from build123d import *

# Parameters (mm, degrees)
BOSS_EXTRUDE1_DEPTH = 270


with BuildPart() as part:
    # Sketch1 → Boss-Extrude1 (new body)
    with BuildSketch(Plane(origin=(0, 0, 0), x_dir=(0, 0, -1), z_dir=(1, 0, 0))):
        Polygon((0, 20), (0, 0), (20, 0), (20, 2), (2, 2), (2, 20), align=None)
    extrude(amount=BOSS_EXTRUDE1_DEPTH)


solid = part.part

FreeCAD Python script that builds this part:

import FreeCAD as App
import Part
import Sketcher
Q = App.Units.Quantity


def add_polygon(sketch, points):
    """Adds a closed chain of lines whose ends are joined by coincident constraints."""
    first, n = sketch.GeometryCount, len(points)
    for a, b in zip(points, points[1:] + points[:1]):
        sketch.addGeometry(Part.LineSegment(App.Vector(*a, 0), App.Vector(*b, 0)), False)
    for i in range(n):
        sketch.addConstraint(Sketcher.Constraint("Coincident", first + i, 2, first + (i + 1) % n, 1))

doc = App.newDocument("Part")
body = doc.addObject("PartDesign::Body", "Body")

# Sketch on YZ plane
sketch1 = doc.addObject("Sketcher::SketchObject", "Sketch")
body.addObject(sketch1)
sketch1.AttachmentSupport = (doc.YZ_Plane, [""])
sketch1.MapMode = "FlatFace"
add_polygon(sketch1, [(20, 0), (0, 0), (0, -20), (2, -20), (2, -2), (20, -2)])  # lines 0-5
sketch1.addConstraint([
    Sketcher.Constraint("Horizontal", 0),
    Sketcher.Constraint("Vertical", 1),
    Sketcher.Constraint("Horizontal", 2),
    Sketcher.Constraint("Vertical", 3),
    Sketcher.Constraint("Horizontal", 4),
    Sketcher.Constraint("Vertical", 5),
    Sketcher.Constraint("Coincident", 0, 2, -1, 1),
    Sketcher.Constraint("Equal", 0, 1),
    Sketcher.Constraint("Equal", 4, 3),
    Sketcher.Constraint("DistanceX", 0, 2, 0, 1, Q("20 mm")),
    Sketcher.Constraint("DistanceX", 2, 1, 2, 2, Q("2 mm")),
])
pad1 = doc.addObject("PartDesign::Pad", "Pad")
body.addObject(pad1)
pad1.Profile = sketch1
pad1.Length = 270

doc.recompute()
